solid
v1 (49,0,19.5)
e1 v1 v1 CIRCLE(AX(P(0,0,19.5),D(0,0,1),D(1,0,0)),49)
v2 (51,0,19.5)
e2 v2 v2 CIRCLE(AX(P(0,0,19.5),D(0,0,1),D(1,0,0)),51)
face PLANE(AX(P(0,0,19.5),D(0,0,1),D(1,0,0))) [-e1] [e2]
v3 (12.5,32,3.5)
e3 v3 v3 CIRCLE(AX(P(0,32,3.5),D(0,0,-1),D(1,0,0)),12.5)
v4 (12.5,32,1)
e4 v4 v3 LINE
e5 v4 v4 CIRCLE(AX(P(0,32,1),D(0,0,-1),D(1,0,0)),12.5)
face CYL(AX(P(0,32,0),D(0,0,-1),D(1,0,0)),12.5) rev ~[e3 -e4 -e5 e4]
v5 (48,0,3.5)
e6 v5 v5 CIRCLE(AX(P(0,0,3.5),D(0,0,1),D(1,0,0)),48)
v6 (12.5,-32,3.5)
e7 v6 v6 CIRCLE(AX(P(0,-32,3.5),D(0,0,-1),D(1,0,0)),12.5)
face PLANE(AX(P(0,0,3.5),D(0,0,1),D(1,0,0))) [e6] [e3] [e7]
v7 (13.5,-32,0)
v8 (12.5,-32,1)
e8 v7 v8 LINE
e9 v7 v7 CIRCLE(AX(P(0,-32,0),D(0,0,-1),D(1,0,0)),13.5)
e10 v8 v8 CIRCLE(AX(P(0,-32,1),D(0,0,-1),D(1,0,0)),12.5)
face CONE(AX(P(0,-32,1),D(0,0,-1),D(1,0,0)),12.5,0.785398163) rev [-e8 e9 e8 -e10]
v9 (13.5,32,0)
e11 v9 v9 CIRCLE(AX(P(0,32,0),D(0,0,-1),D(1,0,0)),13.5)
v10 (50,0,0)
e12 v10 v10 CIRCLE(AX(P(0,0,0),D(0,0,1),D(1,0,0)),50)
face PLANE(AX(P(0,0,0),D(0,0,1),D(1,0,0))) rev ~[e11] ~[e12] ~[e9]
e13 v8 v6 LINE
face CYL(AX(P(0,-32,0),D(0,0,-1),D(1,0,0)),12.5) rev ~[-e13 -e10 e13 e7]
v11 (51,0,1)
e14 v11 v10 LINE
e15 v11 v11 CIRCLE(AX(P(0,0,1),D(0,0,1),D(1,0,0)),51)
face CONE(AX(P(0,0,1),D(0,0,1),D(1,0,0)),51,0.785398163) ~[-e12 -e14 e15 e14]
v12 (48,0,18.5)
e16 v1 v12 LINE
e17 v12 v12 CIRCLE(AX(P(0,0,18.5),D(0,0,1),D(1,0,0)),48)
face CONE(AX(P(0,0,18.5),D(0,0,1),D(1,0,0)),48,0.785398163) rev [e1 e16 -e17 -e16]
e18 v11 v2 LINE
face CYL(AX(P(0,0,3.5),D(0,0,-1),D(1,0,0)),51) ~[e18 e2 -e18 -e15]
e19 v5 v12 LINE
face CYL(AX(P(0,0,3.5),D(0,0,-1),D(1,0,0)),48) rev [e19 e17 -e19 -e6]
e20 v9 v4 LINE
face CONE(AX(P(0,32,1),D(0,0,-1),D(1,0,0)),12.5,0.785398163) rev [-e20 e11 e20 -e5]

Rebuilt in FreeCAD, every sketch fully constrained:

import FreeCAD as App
import Part
import Sketcher
from FreeCAD import Vector


def edges_at(feature, points):
    """Names of the edges that pass closest to the given points."""
    edges = feature.Shape.Edges
    near = lambda p: min(range(len(edges)), key=lambda i: edges[i].distToShape(Part.Vertex(*p))[0])
    return sorted({f"Edge{near(p) + 1}" for p in points})

doc = App.newDocument("Part")
body = doc.addObject("PartDesign::Body", "Body")

sketch1 = body.newObject("Sketcher::SketchObject", "Sketch")
sketch1.AttachmentSupport = (doc.getObject("XY_Plane"), [""])
sketch1.MapMode = "FlatFace"
sketch1.addGeometry(Part.Circle(Vector(0, 0, 0), Vector(0, 0, 1), 51), False)
sketch1.addConstraint([
    Sketcher.Constraint("Coincident", 0, 3, -1, 1),
    Sketcher.Constraint("Diameter", 0, 102.0),
])
pad1 = body.newObject("PartDesign::Pad", "Pad")
pad1.Profile = sketch1
pad1.Length = 3.5

sketch2 = body.newObject("Sketcher::SketchObject", "Sketch001")
sketch2.AttachmentSupport = (doc.getObject("XY_Plane"), [""])
sketch2.MapMode = "FlatFace"
sketch2.AttachmentOffset = App.Placement(Vector(0, 0, 3.5), App.Rotation())
sketch2.addGeometry([
    Part.Circle(Vector(0, 0, 0), Vector(0, 0, 1), 51),
    Part.Circle(Vector(0, 0, 0), Vector(0, 0, 1), 48),
], False)
sketch2.addConstraint([
    Sketcher.Constraint("Coincident", 0, 3, -1, 1),
    Sketcher.Constraint("Coincident", 1, 3, -1, 1),
    Sketcher.Constraint("Diameter", 0, 102.0),
    Sketcher.Constraint("Diameter", 1, 96.0),
])
pad2 = body.newObject("PartDesign::Pad", "Pad001")
pad2.Profile = sketch2
pad2.Length = 16

sketch3 = body.newObject("Sketcher::SketchObject", "Sketch002")
sketch3.AttachmentSupport = (doc.getObject("XY_Plane"), [""])
sketch3.MapMode = "FlatFace"
sketch3.addGeometry([
    Part.Circle(Vector(0, -32, 0), Vector(0, 0, 1), 12),
    Part.Circle(Vector(0, 32, 0), Vector(0, 0, 1), 12),
], False)
sketch3.addConstraint([
    Sketcher.Constraint("Equal", 0, 1),
    Sketcher.Constraint("Symmetric", 0, 3, 1, 3, -1, 1),
    Sketcher.Constraint("PointOnObject", 0, 3, -2),
    Sketcher.Constraint("Diameter", 0, 25.0),
    Sketcher.Constraint("DistanceY", 0, 3, -1, 1, 32.0),
])
pocket1 = body.newObject("PartDesign::Pocket", "Pocket")
pocket1.Profile = sketch3
pocket1.Length = 25
pocket1.Reversed = True
doc.recompute()

chamfer = body.newObject("PartDesign::Chamfer", "Chamfer")
chamfer.Base = (pocket1, edges_at(pocket1, [(-51, 0, 0), (-12.5, 32, 0), (-12.5, -32, 0)]))
chamfer.Size = 1
doc.recompute()

chamfer2 = body.newObject("PartDesign::Chamfer", "Chamfer001")
chamfer2.Base = (chamfer, edges_at(chamfer, [(-48, 0, 19.5)]))
chamfer2.Size = 1

doc.recompute()
